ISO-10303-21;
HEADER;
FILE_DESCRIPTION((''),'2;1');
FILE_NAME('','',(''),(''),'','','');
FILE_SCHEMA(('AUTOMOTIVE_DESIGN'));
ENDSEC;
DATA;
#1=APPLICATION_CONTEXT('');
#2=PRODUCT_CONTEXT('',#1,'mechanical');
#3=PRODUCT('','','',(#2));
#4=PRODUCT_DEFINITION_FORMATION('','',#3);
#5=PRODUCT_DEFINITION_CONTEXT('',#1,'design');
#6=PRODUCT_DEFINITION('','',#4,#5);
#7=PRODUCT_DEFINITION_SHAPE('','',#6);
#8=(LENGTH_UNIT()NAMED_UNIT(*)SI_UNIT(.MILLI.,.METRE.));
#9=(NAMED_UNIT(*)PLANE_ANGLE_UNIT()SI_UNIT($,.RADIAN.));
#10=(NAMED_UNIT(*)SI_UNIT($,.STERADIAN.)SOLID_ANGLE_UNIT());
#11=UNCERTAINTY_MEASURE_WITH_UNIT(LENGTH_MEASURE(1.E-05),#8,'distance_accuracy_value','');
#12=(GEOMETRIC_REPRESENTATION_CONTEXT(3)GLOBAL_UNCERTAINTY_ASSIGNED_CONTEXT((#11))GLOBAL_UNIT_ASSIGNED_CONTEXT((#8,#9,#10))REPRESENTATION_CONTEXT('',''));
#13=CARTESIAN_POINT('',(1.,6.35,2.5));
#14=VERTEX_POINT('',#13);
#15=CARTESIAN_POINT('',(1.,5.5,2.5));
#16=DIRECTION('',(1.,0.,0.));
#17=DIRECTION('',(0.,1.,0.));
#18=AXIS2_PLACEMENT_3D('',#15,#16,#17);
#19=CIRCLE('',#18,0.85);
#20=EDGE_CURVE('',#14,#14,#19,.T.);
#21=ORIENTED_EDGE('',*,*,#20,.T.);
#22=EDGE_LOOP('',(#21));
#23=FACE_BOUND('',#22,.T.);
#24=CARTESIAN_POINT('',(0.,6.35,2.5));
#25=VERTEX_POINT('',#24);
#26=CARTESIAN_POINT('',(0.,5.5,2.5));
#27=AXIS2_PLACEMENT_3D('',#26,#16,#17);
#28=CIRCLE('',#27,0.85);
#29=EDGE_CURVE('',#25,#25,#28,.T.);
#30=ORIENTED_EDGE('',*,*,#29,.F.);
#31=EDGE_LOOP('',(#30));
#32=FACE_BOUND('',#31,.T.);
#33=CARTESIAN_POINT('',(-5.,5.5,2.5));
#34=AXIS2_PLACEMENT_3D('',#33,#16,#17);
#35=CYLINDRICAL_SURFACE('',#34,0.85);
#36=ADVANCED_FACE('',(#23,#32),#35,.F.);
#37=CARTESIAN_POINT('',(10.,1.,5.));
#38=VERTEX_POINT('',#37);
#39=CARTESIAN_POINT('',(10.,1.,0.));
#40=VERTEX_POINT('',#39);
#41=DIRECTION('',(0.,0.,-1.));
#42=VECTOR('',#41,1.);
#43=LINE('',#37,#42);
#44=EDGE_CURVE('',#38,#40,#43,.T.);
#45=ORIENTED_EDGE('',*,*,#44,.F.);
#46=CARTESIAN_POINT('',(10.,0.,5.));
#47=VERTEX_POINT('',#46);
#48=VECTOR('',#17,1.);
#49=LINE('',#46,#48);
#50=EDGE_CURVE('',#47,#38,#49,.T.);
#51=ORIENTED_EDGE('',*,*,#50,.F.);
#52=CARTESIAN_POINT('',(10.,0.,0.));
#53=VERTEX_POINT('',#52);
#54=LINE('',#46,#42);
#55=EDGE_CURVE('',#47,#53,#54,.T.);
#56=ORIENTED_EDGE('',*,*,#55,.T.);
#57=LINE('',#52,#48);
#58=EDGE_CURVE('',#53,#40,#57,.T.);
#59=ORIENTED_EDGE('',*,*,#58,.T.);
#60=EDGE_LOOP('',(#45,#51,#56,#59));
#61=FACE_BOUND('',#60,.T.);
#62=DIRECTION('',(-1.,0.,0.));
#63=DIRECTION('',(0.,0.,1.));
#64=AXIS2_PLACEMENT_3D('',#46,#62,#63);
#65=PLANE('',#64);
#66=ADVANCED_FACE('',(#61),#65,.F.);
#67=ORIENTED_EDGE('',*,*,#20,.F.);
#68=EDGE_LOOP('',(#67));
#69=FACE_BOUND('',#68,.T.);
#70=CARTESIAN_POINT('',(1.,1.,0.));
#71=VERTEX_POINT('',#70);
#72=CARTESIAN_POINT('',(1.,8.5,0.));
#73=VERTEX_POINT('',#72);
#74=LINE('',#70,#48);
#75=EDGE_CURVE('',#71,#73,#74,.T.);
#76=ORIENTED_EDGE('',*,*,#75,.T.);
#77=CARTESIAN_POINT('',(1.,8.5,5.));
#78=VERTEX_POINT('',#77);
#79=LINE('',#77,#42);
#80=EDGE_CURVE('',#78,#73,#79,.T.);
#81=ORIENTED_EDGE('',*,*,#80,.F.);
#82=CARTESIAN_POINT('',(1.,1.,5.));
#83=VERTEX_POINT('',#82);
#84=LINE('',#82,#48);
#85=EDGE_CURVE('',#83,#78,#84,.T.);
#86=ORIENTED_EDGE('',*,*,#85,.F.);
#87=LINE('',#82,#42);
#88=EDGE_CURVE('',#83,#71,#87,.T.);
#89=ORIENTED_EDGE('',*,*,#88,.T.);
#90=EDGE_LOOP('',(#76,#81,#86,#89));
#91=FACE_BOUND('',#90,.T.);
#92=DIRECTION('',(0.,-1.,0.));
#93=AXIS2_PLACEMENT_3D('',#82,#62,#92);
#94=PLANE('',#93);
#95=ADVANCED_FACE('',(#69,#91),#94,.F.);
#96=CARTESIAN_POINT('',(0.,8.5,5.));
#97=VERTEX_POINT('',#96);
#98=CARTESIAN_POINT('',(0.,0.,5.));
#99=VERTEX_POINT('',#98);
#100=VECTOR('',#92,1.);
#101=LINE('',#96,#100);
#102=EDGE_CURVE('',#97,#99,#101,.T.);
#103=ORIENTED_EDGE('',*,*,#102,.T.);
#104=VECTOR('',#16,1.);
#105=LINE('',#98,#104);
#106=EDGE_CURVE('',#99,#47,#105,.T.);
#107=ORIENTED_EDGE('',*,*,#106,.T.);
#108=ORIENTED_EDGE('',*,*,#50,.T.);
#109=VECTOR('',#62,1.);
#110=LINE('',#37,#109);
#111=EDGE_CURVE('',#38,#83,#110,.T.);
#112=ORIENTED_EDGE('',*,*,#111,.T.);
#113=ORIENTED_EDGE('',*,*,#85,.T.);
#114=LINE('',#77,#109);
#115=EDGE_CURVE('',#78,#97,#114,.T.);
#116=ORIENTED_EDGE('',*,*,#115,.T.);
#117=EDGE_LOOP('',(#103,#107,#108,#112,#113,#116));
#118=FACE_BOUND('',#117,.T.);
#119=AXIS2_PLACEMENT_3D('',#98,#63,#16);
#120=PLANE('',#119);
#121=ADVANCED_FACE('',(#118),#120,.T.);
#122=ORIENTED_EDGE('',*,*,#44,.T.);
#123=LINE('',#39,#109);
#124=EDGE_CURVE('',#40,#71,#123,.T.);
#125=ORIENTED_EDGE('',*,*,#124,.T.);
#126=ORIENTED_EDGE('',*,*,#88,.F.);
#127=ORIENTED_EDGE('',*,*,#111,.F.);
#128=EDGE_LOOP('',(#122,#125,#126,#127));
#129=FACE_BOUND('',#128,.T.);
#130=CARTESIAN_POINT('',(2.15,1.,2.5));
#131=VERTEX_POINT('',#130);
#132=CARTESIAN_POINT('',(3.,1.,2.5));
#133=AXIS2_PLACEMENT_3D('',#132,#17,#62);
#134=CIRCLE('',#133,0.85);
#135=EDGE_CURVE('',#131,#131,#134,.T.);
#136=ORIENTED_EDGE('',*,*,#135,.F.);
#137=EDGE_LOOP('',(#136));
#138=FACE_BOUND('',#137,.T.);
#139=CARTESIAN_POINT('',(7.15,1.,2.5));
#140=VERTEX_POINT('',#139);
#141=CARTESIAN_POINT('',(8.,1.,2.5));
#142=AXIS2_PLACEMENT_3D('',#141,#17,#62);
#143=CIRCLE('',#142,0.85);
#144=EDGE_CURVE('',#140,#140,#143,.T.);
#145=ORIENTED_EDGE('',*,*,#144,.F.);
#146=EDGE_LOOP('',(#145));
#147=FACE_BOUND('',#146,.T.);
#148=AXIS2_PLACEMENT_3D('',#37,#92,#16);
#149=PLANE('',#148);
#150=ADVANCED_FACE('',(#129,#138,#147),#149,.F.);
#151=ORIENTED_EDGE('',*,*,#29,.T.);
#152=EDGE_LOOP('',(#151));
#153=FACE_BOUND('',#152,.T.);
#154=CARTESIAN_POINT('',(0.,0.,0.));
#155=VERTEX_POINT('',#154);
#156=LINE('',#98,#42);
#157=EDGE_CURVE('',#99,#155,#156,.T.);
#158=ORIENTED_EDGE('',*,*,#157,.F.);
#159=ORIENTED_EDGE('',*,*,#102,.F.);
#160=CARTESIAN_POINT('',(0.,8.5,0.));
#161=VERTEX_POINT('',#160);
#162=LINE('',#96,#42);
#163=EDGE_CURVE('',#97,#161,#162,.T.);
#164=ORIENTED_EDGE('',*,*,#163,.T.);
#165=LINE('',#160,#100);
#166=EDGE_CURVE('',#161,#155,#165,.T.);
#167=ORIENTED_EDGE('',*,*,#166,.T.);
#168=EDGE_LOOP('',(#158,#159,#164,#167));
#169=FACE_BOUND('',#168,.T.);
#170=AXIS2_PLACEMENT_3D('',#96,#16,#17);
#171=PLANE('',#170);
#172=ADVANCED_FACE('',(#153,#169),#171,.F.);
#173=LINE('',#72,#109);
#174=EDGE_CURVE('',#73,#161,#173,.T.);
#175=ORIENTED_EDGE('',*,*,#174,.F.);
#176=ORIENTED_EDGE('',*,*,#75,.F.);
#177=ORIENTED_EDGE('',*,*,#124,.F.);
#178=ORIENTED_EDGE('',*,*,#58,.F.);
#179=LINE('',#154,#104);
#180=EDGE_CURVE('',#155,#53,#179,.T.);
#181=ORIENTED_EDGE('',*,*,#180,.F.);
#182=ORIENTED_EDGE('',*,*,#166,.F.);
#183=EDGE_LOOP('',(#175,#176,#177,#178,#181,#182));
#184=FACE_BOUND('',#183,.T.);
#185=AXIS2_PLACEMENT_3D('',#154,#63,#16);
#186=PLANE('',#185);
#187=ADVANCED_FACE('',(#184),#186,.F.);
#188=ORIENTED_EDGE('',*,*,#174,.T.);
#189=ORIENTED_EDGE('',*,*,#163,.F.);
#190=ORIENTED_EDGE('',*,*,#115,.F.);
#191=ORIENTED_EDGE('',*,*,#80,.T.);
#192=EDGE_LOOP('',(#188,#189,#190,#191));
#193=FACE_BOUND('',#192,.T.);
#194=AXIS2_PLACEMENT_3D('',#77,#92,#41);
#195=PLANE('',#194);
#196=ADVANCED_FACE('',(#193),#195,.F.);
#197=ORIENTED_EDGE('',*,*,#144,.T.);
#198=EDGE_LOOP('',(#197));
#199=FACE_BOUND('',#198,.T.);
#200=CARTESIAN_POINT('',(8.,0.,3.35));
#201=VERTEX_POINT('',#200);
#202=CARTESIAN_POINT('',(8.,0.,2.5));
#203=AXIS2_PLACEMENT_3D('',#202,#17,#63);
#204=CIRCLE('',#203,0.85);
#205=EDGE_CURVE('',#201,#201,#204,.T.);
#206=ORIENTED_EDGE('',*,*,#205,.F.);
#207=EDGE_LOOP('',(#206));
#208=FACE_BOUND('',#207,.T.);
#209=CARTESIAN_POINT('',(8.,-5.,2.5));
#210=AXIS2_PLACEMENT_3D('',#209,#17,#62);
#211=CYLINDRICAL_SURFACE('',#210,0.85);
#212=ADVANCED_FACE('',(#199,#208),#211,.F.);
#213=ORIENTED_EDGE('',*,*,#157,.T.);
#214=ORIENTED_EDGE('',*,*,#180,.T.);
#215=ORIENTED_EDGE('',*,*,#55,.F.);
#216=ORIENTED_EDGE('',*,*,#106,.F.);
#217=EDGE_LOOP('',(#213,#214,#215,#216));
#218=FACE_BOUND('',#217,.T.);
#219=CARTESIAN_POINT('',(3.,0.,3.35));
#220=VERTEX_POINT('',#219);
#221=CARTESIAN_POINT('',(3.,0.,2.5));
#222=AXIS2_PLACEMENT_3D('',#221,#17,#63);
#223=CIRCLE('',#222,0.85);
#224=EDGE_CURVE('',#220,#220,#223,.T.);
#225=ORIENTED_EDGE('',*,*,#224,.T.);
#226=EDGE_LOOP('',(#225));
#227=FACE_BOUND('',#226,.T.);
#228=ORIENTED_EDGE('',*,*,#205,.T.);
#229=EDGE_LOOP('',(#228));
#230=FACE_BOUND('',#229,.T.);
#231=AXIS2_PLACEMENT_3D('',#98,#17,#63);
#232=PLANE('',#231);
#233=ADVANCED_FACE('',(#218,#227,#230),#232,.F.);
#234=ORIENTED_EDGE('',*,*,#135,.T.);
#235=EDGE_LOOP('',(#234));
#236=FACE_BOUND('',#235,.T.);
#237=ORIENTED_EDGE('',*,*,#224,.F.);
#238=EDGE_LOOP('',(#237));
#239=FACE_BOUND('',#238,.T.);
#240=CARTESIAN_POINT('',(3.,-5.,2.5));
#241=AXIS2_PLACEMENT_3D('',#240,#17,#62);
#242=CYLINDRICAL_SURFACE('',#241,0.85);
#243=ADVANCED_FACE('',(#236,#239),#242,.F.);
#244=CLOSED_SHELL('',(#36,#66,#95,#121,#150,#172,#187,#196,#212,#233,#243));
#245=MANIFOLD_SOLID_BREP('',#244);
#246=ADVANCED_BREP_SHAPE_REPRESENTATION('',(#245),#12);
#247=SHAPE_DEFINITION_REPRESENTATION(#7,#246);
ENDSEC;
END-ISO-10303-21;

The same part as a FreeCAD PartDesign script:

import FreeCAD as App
import Part
import Sketcher
from FreeCAD import Vector


def add_polygon(sketch, points):
    """Adds a closed chain of lines whose ends are joined by coincident constraints."""
    first, n = sketch.GeometryCount, len(points)
    for a, b in zip(points, points[1:] + points[:1]):
        sketch.addGeometry(Part.LineSegment(App.Vector(*a, 0), App.Vector(*b, 0)), False)
    for i in range(n):
        sketch.addConstraint(Sketcher.Constraint("Coincident", first + i, 2, first + (i + 1) % n, 1))

doc = App.newDocument("Part")
body = doc.addObject("PartDesign::Body", "Body")

# Sketch on XY plane
sketch1 = body.newObject("Sketcher::SketchObject", "Sketch")
sketch1.AttachmentSupport = (doc.getObject("XY_Plane"), [""])
sketch1.MapMode = "FlatFace"
add_polygon(sketch1, [(0, 0), (10, 0), (10, 1), (1, 1), (1, 8.5), (0, 8.5)])  # lines 0-5
sketch1.addConstraint(Sketcher.Constraint("Horizontal", 0))
sketch1.addConstraint(Sketcher.Constraint("Vertical", 1))
sketch1.addConstraint(Sketcher.Constraint("Horizontal", 2))
sketch1.addConstraint(Sketcher.Constraint("Vertical", 3))
sketch1.addConstraint(Sketcher.Constraint("Horizontal", 4))
sketch1.addConstraint(Sketcher.Constraint("Vertical", 5))
sketch1.addConstraint(Sketcher.Constraint("Coincident", 5, 2, -1, 1))
sketch1.addConstraint(Sketcher.Constraint("Equal", 4, 1))
sketch1.addConstraint(Sketcher.Constraint("DistanceX", 0, 1, 0, 2, 10.0))
sketch1.addConstraint(Sketcher.Constraint("DistanceX", 2, 2, 2, 1, 9.0))
sketch1.addConstraint(Sketcher.Constraint("DistanceY", 3, 1, 3, 2, 7.5))
pad1 = body.newObject("PartDesign::Pad", "Pad")
pad1.Profile = sketch1
pad1.Length = 5

# Sketch on YZ plane
sketch2 = body.newObject("Sketcher::SketchObject", "Sketch001")
sketch2.AttachmentSupport = (doc.getObject("YZ_Plane"), [""])
sketch2.MapMode = "FlatFace"
sketch2.AttachmentOffset = App.Placement(Vector(0, 0, 1), App.Rotation())
sketch2.addGeometry(Part.Circle(Vector(5.5, 2.5, 0), Vector(0, 0, 1), 0.8), False)
sketch2.addConstraint(Sketcher.Constraint("Diameter", 0, 1.7))
sketch2.addConstraint(Sketcher.Constraint("DistanceX", -1, 1, 0, 3, 5.5))
sketch2.addConstraint(Sketcher.Constraint("DistanceY", -1, 1, 0, 3, 2.5))
pocket1 = body.newObject("PartDesign::Pocket", "Pocket")
pocket1.Profile = sketch2
pocket1.Length = 6

# Sketch on XZ plane
sketch3 = body.newObject("Sketcher::SketchObject", "Sketch002")
sketch3.AttachmentSupport = (doc.getObject("XZ_Plane"), [""])
sketch3.MapMode = "FlatFace"
sketch3.AttachmentOffset = App.Placement(Vector(0, 0, -1), App.Rotation())
sketch3.addGeometry(Part.Circle(Vector(3, 2.5, 0), Vector(0, 0, 1), 0.8), False)
sketch3.addGeometry(Part.Circle(Vector(8, 2.5, 0), Vector(0, 0, 1), 0.8), False)
sketch3.addConstraint(Sketcher.Constraint("Equal", 0, 1))
sketch3.addConstraint(Sketcher.Constraint("Horizontal", 0, 3, 1, 3))
sketch3.addConstraint(Sketcher.Constraint("Diameter", 0, 1.7))
sketch3.addConstraint(Sketcher.Constraint("DistanceX", -1, 1, 0, 3, 3.0))
sketch3.addConstraint(Sketcher.Constraint("DistanceX", -1, 1, 1, 3, 8.0))
sketch3.addConstraint(Sketcher.Constraint("DistanceY", -1, 1, 0, 3, 2.5))
pocket2 = body.newObject("PartDesign::Pocket", "Pocket001")
pocket2.Profile = sketch3
pocket2.Length = 6
pocket2.Reversed = True

doc.recompute()
